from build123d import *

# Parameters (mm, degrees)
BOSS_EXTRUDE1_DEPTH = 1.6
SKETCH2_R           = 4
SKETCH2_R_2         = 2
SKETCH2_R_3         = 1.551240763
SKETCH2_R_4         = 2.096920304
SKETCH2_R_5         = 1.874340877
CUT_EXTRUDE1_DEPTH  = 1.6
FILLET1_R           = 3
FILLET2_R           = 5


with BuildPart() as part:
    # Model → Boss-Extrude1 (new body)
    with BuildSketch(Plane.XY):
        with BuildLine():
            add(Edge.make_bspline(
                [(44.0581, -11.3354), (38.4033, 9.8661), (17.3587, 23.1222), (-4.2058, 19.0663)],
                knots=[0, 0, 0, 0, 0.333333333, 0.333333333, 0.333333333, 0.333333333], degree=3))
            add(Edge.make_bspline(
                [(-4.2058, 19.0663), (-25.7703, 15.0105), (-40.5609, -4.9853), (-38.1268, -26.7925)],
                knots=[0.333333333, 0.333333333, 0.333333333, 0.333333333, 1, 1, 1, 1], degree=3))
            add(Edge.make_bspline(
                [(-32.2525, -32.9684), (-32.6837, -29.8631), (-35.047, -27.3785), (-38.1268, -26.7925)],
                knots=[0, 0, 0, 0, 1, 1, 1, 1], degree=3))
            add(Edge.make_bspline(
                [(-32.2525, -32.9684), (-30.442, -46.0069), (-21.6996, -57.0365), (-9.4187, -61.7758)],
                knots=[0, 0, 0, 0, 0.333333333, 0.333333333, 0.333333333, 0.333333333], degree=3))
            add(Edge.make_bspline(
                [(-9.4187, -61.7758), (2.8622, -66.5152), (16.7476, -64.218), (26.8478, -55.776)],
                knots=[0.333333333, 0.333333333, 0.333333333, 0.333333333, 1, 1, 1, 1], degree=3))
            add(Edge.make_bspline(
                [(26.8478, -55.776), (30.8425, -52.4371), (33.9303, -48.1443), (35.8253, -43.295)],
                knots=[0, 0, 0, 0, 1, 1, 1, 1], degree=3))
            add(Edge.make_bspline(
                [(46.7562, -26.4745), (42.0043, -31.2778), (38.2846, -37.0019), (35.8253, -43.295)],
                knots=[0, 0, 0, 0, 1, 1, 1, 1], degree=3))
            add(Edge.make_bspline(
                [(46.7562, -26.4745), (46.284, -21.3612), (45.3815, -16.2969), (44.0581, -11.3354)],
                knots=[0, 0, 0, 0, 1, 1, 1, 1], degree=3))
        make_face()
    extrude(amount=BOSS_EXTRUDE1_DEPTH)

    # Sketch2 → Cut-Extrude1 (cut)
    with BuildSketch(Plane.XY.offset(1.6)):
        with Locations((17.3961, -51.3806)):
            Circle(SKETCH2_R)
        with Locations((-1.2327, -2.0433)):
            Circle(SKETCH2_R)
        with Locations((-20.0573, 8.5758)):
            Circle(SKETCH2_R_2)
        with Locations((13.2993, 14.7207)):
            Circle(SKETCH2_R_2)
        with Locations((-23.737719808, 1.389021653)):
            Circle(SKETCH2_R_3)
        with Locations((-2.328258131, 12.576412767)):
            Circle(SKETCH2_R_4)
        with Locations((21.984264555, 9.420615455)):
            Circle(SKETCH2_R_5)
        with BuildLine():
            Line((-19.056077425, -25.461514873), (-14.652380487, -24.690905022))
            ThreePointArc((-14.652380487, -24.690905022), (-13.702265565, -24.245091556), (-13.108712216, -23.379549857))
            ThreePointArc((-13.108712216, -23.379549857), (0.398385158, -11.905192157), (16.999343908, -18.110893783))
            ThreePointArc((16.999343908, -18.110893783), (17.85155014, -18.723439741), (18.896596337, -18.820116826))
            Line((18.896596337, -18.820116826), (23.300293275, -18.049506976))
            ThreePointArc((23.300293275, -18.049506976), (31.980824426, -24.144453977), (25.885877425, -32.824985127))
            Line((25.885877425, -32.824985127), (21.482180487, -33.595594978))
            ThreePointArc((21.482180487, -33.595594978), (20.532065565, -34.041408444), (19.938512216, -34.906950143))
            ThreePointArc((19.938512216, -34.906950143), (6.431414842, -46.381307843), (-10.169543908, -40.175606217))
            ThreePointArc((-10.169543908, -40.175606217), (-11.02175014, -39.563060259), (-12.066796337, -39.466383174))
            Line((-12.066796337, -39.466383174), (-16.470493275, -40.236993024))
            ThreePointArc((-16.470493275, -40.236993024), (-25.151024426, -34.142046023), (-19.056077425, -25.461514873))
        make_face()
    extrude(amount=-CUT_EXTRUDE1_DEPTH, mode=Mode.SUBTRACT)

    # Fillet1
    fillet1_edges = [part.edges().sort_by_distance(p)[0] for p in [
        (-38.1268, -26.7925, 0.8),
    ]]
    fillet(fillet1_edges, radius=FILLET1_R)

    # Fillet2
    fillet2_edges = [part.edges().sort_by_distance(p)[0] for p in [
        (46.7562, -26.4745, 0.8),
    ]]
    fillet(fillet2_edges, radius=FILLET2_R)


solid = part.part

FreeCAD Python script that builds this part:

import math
import FreeCAD as App
import Part
import Sketcher
from FreeCAD import Vector


def edges_at(feature, points):
    """Names of the edges that pass closest to the given points."""
    edges = feature.Shape.Edges
    near = lambda p: min(range(len(edges)), key=lambda i: edges[i].distToShape(Part.Vertex(*p))[0])
    return sorted({f"Edge{near(p) + 1}" for p in points})

doc = App.newDocument("Part")
body = doc.addObject("PartDesign::Body", "Body")

sketch1 = body.newObject("Sketcher::SketchObject", "Sketch")
sketch1.AttachmentSupport = (doc.getObject("XY_Plane"), [""])
sketch1.MapMode = "FlatFace"
sketch1.addGeometry([
    Part.BSplineCurve([Vector(44.0581, -11.3354, 0), Vector(38.4033, 9.8661, 0), Vector(17.3587, 23.1222, 0), Vector(-4.2058, 19.0663, 0)], [4, 4], [0, 0.333333333], False, 3, [1, 1, 1, 1], False),
    Part.BSplineCurve([Vector(-4.2058, 19.0663, 0), Vector(-25.7703, 15.0105, 0), Vector(-40.5609, -4.9853, 0), Vector(-38.1268, -26.7925, 0)], [4, 4], [0.333333333, 1], False, 3, [1, 1, 1, 1], False),
    Part.BSplineCurve([Vector(-32.2525, -32.9684, 0), Vector(-32.6837, -29.8631, 0), Vector(-35.047, -27.3785, 0), Vector(-38.1268, -26.7925, 0)], [4, 4], [0, 1], False, 3, [1, 1, 1, 1], False),
    Part.BSplineCurve([Vector(-32.2525, -32.9684, 0), Vector(-30.442, -46.0069, 0), Vector(-21.6996, -57.0365, 0), Vector(-9.4187, -61.7758, 0)], [4, 4], [0, 0.333333333], False, 3, [1, 1, 1, 1], False),
    Part.BSplineCurve([Vector(-9.4187, -61.7758, 0), Vector(2.8622, -66.5152, 0), Vector(16.7476, -64.218, 0), Vector(26.8478, -55.776, 0)], [4, 4], [0.333333333, 1], False, 3, [1, 1, 1, 1], False),
    Part.BSplineCurve([Vector(26.8478, -55.776, 0), Vector(30.8425, -52.4371, 0), Vector(33.9303, -48.1443, 0), Vector(35.8253, -43.295, 0)], [4, 4], [0, 1], False, 3, [1, 1, 1, 1], False),
    Part.BSplineCurve([Vector(46.7562, -26.4745, 0), Vector(42.0043, -31.2778, 0), Vector(38.2846, -37.0019, 0), Vector(35.8253, -43.295, 0)], [4, 4], [0, 1], False, 3, [1, 1, 1, 1], False),
    Part.BSplineCurve([Vector(46.7562, -26.4745, 0), Vector(46.284, -21.3612, 0), Vector(45.3815, -16.2969, 0), Vector(44.0581, -11.3354, 0)], [4, 4], [0, 1], False, 3, [1, 1, 1, 1], False),
], False)
sketch1.addConstraint([
    Sketcher.Constraint("Block", 0),
    Sketcher.Constraint("Block", 1),
    Sketcher.Constraint("Block", 2),
    Sketcher.Constraint("Block", 3),
    Sketcher.Constraint("Block", 4),
    Sketcher.Constraint("Block", 5),
    Sketcher.Constraint("Block", 6),
    Sketcher.Constraint("Block", 7),
])
pad1 = body.newObject("PartDesign::Pad", "Pad")
pad1.Profile = sketch1
pad1.Length = 1.6

sketch2 = body.newObject("Sketcher::SketchObject", "Sketch001")
sketch2.AttachmentSupport = (doc.getObject("XY_Plane"), [""])
sketch2.MapMode = "FlatFace"
sketch2.AttachmentOffset = App.Placement(Vector(0, 0, 1.6), App.Rotation())
sketch2.addGeometry([
    Part.Circle(Vector(17.4, -51.4, 0), Vector(0, 0, 1), 4),
    Part.Circle(Vector(-1.2, -2, 0), Vector(0, 0, 1), 4),
    Part.Circle(Vector(-20.1, 8.6, 0), Vector(0, 0, 1), 2),
    Part.Circle(Vector(13.3, 14.7, 0), Vector(0, 0, 1), 2),
    Part.Circle(Vector(-23.7, 1.4, 0), Vector(0, 0, 1), 1.6),
    Part.Circle(Vector(-2.3, 12.6, 0), Vector(0, 0, 1), 2.1),
    Part.Circle(Vector(22, 9.4, 0), Vector(0, 0, 1), 1.9),
    Part.LineSegment(Vector(-14.7, -24.7, 0), Vector(-19.1, -25.5, 0)),
    Part.ArcOfCircle(Part.Circle(Vector(-17.8, -32.8, 0), Vector(0, 0, 1), 7.5), math.radians(100), math.radians(280)),
    Part.LineSegment(Vector(-16.5, -40.2, 0), Vector(-12.1, -39.5, 0)),
    Part.ArcOfCircle(Part.Circle(Vector(-11.7, -41.4, 0), Vector(0, 0, 1), 2), math.radians(39), math.radians(100)),
    Part.ArcOfCircle(Part.Circle(Vector(3.4, -29.1, 0), Vector(0, 0, 1), 17.5), math.radians(-141), math.radians(-19)),
    Part.ArcOfCircle(Part.Circle(Vector(21.8, -35.6, 0), Vector(0, 0, 1), 2), math.radians(100), math.radians(161)),
    Part.LineSegment(Vector(21.5, -33.6, 0), Vector(25.9, -32.8, 0)),
    Part.ArcOfCircle(Part.Circle(Vector(24.6, -25.4, 0), Vector(0, 0, 1), 7.5), math.radians(-80), math.radians(100)),
    Part.LineSegment(Vector(23.3, -18, 0), Vector(18.9, -18.8, 0)),
    Part.ArcOfCircle(Part.Circle(Vector(18.6, -16.9, 0), Vector(0, 0, 1), 2), math.radians(-141), math.radians(-80)),
    Part.ArcOfCircle(Part.Circle(Vector(3.4, -29.1, 0), Vector(0, 0, 1), 17.5), math.radians(39), math.radians(161)),
    Part.ArcOfCircle(Part.Circle(Vector(-15, -22.7, 0), Vector(0, 0, 1), 2), math.radians(-80), math.radians(-19)),
], False)
sketch2.addConstraint([
    Sketcher.Constraint("Tangent", 7, 2, 8, 1),
    Sketcher.Constraint("Tangent", 8, 2, 9, 1),
    Sketcher.Constraint("Tangent", 9, 2, 10, 2),
    Sketcher.Constraint("Tangent", 10, 1, 11, 1),
    Sketcher.Constraint("Tangent", 11, 2, 12, 2),
    Sketcher.Constraint("Tangent", 12, 1, 13, 1),
    Sketcher.Constraint("Tangent", 13, 2, 14, 1),
    Sketcher.Constraint("Tangent", 14, 2, 15, 1),
    Sketcher.Constraint("Tangent", 15, 2, 16, 2),
    Sketcher.Constraint("Tangent", 16, 1, 17, 1),
    Sketcher.Constraint("Tangent", 17, 2, 18, 2),
    Sketcher.Constraint("Tangent", 18, 1, 7, 1),
    Sketcher.Constraint("Coincident", 17, 3, 11, 3),
    Sketcher.Constraint("Equal", 0, 1),
    Sketcher.Constraint("Equal", 2, 3),
    Sketcher.Constraint("Equal", 3, 10),
    Sketcher.Constraint("Equal", 10, 12),
    Sketcher.Constraint("Equal", 8, 14),
    Sketcher.Constraint("Equal", 12, 16),
    Sketcher.Constraint("Equal", 11, 17),
    Sketcher.Constraint("Equal", 16, 18),
    Sketcher.Constraint("Parallel", 7, 9),
    Sketcher.Constraint("Parallel", 9, 13),
    Sketcher.Constraint("Parallel", 13, 15),
    Sketcher.Constraint("Equal", 7, 9),
    Sketcher.Constraint("Equal", 9, 13),
    Sketcher.Constraint("Equal", 13, 15),
    Sketcher.Constraint("Diameter", 0, 8.0),
    Sketcher.Constraint("Diameter", 2, 4.0),
    Sketcher.Constraint("Radius", 8, 7.5),
    Sketcher.Constraint("Radius", 11, 17.5),
    Sketcher.Constraint("Diameter", 4, 3.102482),
    Sketcher.Constraint("Diameter", 5, 4.193841),
    Sketcher.Constraint("Diameter", 6, 3.748682),
    Sketcher.Constraint("DistanceX", 1, 3, 3, 3, 14.532),
    Sketcher.Constraint("DistanceY", 1, 3, 3, 3, 16.764),
    Sketcher.Constraint("DistanceX", -1, 1, 0, 3, 17.3961),
    Sketcher.Constraint("DistanceY", 0, 3, -1, 1, 51.3806),
    Sketcher.Constraint("DistanceX", 1, 3, -1, 1, 1.2327),
    Sketcher.Constraint("DistanceY", 1, 3, -1, 1, 2.0433),
    Sketcher.Constraint("DistanceX", 2, 3, -1, 1, 20.0573),
    Sketcher.Constraint("DistanceY", -1, 1, 2, 3, 8.5758),
    Sketcher.Constraint("DistanceX", -1, 1, 11, 3, 3.4149),
    Sketcher.Constraint("DistanceY", 11, 2, 11, 3, 5.7637),
    Sketcher.Constraint("DistanceX", 4, 3, -1, 1, 23.73772),
    Sketcher.Constraint("DistanceY", -1, 1, 4, 3, 1.389022),
    Sketcher.Constraint("DistanceX", 5, 3, -1, 1, 2.328258),
    Sketcher.Constraint("DistanceY", 11, 3, -1, 1, 29.14325),
    Sketcher.Constraint("DistanceY", 4, 3, 5, 3, 11.187391),
    Sketcher.Constraint("DistanceX", 8, 3, 12, 3, 39.59021),
    Sketcher.Constraint("DistanceX", 6, 3, 14, 3, 2.608821),
    Sketcher.Constraint("DistanceY", 14, 3, 6, 3, 34.857862),
])
pocket1 = body.newObject("PartDesign::Pocket", "Pocket")
pocket1.Profile = sketch2
pocket1.Length = 1.6
doc.recompute()

fillet = body.newObject("PartDesign::Fillet", "Fillet")
fillet.Base = (pocket1, edges_at(pocket1, [(-38.127, -26.793, 0.8)]))
fillet.Radius = 3
doc.recompute()

fillet2 = body.newObject("PartDesign::Fillet", "Fillet001")
fillet2.Base = (fillet, edges_at(fillet, [(46.756, -26.474, 0.8)]))
fillet2.Radius = 5

doc.recompute()
